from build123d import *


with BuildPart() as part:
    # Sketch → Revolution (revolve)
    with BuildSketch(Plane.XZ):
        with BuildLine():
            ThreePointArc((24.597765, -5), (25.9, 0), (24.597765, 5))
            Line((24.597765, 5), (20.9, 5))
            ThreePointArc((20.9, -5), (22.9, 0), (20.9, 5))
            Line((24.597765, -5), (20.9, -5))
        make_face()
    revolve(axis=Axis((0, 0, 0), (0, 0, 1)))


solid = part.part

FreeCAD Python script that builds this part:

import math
import FreeCAD as App
import Part
import Sketcher
Q = App.Units.Quantity

doc = App.newDocument("Part")
params = doc.addObject("Spreadsheet::Sheet", "Params")
for row, (alias, value) in enumerate([
    ("sketch1_radius", "10.249999 mm"),
    ("sketch1_radius2", "7.25 mm"),
    ("revolution_angle", "360 deg"),
], start=1):
    params.set(f"A{row}", alias)
    params.set(f"B{row}", "=" + value)
    params.setAlias(f"B{row}", alias)

body = doc.addObject("PartDesign::Body", "Body")

# Sketch on XZ plane
sketch1 = doc.addObject("Sketcher::SketchObject", "Sketch")
body.addObject(sketch1)
sketch1.AttachmentSupport = (doc.XZ_Plane, [""])
sketch1.MapMode = "FlatFace"
sketch1.addGeometry(Part.ArcOfCircle(Part.Circle(App.Vector(15.650001, 0, 0), App.Vector(0, 0, 1), 10.249999), math.radians(-29.196406), math.radians(29.196406)), False)
sketch1.addGeometry(Part.LineSegment(App.Vector(24.597765, 5, 0), App.Vector(20.9, 5, 0)), False)
sketch1.addGeometry(Part.ArcOfCircle(Part.Circle(App.Vector(15.65, 0, 0), App.Vector(0, 0, 1), 7.25), math.radians(-43.602819), math.radians(43.602819)), False)
sketch1.addGeometry(Part.LineSegment(App.Vector(20.9, -5, 0), App.Vector(24.597765, -5, 0)), False)
sketch1.addConstraint(Sketcher.Constraint("Coincident", 0, 2, 1, 1))
sketch1.addConstraint(Sketcher.Constraint("Coincident", 1, 2, 2, 2))
sketch1.addConstraint(Sketcher.Constraint("Coincident", 2, 1, 3, 1))
sketch1.addConstraint(Sketcher.Constraint("Coincident", 3, 2, 0, 1))
sketch1.addConstraint(Sketcher.Constraint("Horizontal", 1))
sketch1.addConstraint(Sketcher.Constraint("Horizontal", 3))
sketch1.addConstraint(Sketcher.Constraint("Coincident", 2, 3, 0, 3))
sketch1.addConstraint(Sketcher.Constraint("Symmetric", 1, 2, 2, 1, -1))
sketch1.addConstraint(Sketcher.Constraint("Radius", 0, Q("10.249999 mm")))
sketch1.addConstraint(Sketcher.Constraint("Radius", 2, Q("7.25 mm")))
sketch1.addConstraint(Sketcher.Constraint("DistanceY", -1, 1, 0, 2, Q("5 mm")))
sketch1.addConstraint(Sketcher.Constraint("DistanceX", -1, 1, 1, 2, Q("20.9 mm")))
sketch1.setExpression("Constraints[8]", "Params.sketch1_radius")
sketch1.setExpression("Constraints[9]", "Params.sketch1_radius2")
revolution = doc.addObject("PartDesign::Revolution", "Revolution")
body.addObject(revolution)
revolution.Profile = sketch1
revolution.ReferenceAxis = (sketch1, ["V_Axis"])
revolution.setExpression("Angle", "Params.revolution_angle")

doc.recompute()
